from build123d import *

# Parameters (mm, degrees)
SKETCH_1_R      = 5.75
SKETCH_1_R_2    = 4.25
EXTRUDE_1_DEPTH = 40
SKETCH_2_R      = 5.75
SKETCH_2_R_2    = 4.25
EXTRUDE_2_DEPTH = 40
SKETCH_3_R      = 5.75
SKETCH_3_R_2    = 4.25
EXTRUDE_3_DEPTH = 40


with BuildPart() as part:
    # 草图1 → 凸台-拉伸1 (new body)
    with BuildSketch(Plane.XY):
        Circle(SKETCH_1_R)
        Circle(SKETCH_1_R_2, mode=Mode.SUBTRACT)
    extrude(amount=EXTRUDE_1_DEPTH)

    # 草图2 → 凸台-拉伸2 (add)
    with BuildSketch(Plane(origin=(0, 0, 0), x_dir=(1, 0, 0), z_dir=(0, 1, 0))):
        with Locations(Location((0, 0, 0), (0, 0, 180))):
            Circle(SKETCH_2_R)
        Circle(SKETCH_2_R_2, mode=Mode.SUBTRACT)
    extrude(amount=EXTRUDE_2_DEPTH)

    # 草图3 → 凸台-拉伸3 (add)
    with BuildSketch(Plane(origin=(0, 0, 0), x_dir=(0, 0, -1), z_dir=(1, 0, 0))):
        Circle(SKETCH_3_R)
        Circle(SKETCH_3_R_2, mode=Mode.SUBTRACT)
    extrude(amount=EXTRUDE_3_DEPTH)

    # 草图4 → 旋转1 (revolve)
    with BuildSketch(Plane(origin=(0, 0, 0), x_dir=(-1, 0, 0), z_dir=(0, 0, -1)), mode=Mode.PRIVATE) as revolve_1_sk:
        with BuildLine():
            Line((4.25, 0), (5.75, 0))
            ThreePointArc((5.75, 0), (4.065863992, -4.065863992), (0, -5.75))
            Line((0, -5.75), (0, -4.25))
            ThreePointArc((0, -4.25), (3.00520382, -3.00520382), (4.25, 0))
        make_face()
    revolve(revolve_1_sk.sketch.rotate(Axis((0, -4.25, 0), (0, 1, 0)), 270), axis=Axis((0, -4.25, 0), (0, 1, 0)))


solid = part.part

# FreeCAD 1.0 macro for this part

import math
import FreeCAD as App
import Part
import Sketcher

V = App.Vector
Q = App.Units.Quantity

doc = App.newDocument("Part")
body = doc.addObject("PartDesign::Body", "Body")

sketch1 = body.newObject("Sketcher::SketchObject", "Sketch")
sketch1.AttachmentSupport = (doc.getObject("XY_Plane"), [""])
sketch1.MapMode = "FlatFace"
sketch1.addGeometry([
    Part.Circle(V(0, 0, 0), V(0, 0, 1), 5.75),
    Part.Circle(V(0, 0, 0), V(0, 0, 1), 4.25),
], False)
sketch1.addConstraint([
    Sketcher.Constraint("Coincident", 0, 3, -1, 1),
    Sketcher.Constraint("Coincident", 1, 3, -1, 1),
    Sketcher.Constraint("Diameter", 0, Q("11.5 mm")),
    Sketcher.Constraint("Diameter", 1, Q("8.5 mm")),
])
pad1 = body.newObject("PartDesign::Pad", "Pad")
pad1.Profile = sketch1
pad1.Length = 40

sketch2 = body.newObject("Sketcher::SketchObject", "Sketch001")
sketch2.AttachmentSupport = (doc.getObject("XZ_Plane"), [""])
sketch2.MapMode = "FlatFace"
sketch2.addGeometry([
    Part.Circle(V(0, 0, 0), V(0, 0, 1), 5.75),
    Part.Circle(V(0, 0, 0), V(0, 0, 1), 4.25),
], False)
sketch2.addConstraint([
    Sketcher.Constraint("Coincident", 0, 3, -1, 1),
    Sketcher.Constraint("Coincident", 1, 3, -1, 1),
    Sketcher.Constraint("Diameter", 0, Q("11.5 mm")),
    Sketcher.Constraint("Diameter", 1, Q("8.5 mm")),
])
pad2 = body.newObject("PartDesign::Pad", "Pad001")
pad2.Profile = sketch2
pad2.Length = 40
pad2.Reversed = True

sketch3 = body.newObject("Sketcher::SketchObject", "Sketch002")
sketch3.AttachmentSupport = (doc.getObject("YZ_Plane"), [""])
sketch3.MapMode = "FlatFace"
sketch3.addGeometry([
    Part.Circle(V(0, 0, 0), V(0, 0, 1), 5.75),
    Part.Circle(V(0, 0, 0), V(0, 0, 1), 4.25),
], False)
sketch3.addConstraint([
    Sketcher.Constraint("Coincident", 0, 3, -1, 1),
    Sketcher.Constraint("Coincident", 1, 3, -1, 1),
    Sketcher.Constraint("Diameter", 0, Q("11.5 mm")),
    Sketcher.Constraint("Diameter", 1, Q("8.5 mm")),
])
pad3 = body.newObject("PartDesign::Pad", "Pad002")
pad3.Profile = sketch3
pad3.Length = 40

sketch4 = body.newObject("Sketcher::SketchObject", "Sketch003")
sketch4.AttachmentSupport = (doc.getObject("XY_Plane"), [""])
sketch4.MapMode = "FlatFace"
sketch4.addGeometry([
    Part.LineSegment(V(-5.75, 0, 0), V(-4.25, 0, 0)),
    Part.ArcOfCircle(Part.Circle(V(0, 0, 0), V(0, 0, 1), 4.25), math.radians(180), math.radians(270)),
    Part.LineSegment(V(0, -4.25, 0), V(0, -5.75, 0)),
    Part.ArcOfCircle(Part.Circle(V(0, 0, 0), V(0, 0, 1), 5.75), math.radians(180), math.radians(270)),
], False)
sketch4.addConstraint([
    Sketcher.Constraint("Coincident", 0, 2, 1, 1),
    Sketcher.Constraint("Coincident", 1, 2, 2, 1),
    Sketcher.Constraint("Coincident", 2, 2, 3, 2),
    Sketcher.Constraint("Coincident", 3, 1, 0, 1),
    Sketcher.Constraint("Horizontal", 0),
    Sketcher.Constraint("Vertical", 2),
    Sketcher.Constraint("Coincident", 1, 3, -1, 1),
    Sketcher.Constraint("Coincident", 3, 3, -1, 1),
    Sketcher.Constraint("PointOnObject", 0, 2, -1),
    Sketcher.Constraint("PointOnObject", 1, 2, -2),
    Sketcher.Constraint("Radius", 1, Q("4.25 mm")),
    Sketcher.Constraint("Radius", 3, Q("5.75 mm")),
])
revolution = body.newObject("PartDesign::Revolution", "Revolution")
revolution.Profile = sketch4
revolution.ReferenceAxis = (sketch4, ["V_Axis"])
revolution.Angle = 360

doc.recompute()
